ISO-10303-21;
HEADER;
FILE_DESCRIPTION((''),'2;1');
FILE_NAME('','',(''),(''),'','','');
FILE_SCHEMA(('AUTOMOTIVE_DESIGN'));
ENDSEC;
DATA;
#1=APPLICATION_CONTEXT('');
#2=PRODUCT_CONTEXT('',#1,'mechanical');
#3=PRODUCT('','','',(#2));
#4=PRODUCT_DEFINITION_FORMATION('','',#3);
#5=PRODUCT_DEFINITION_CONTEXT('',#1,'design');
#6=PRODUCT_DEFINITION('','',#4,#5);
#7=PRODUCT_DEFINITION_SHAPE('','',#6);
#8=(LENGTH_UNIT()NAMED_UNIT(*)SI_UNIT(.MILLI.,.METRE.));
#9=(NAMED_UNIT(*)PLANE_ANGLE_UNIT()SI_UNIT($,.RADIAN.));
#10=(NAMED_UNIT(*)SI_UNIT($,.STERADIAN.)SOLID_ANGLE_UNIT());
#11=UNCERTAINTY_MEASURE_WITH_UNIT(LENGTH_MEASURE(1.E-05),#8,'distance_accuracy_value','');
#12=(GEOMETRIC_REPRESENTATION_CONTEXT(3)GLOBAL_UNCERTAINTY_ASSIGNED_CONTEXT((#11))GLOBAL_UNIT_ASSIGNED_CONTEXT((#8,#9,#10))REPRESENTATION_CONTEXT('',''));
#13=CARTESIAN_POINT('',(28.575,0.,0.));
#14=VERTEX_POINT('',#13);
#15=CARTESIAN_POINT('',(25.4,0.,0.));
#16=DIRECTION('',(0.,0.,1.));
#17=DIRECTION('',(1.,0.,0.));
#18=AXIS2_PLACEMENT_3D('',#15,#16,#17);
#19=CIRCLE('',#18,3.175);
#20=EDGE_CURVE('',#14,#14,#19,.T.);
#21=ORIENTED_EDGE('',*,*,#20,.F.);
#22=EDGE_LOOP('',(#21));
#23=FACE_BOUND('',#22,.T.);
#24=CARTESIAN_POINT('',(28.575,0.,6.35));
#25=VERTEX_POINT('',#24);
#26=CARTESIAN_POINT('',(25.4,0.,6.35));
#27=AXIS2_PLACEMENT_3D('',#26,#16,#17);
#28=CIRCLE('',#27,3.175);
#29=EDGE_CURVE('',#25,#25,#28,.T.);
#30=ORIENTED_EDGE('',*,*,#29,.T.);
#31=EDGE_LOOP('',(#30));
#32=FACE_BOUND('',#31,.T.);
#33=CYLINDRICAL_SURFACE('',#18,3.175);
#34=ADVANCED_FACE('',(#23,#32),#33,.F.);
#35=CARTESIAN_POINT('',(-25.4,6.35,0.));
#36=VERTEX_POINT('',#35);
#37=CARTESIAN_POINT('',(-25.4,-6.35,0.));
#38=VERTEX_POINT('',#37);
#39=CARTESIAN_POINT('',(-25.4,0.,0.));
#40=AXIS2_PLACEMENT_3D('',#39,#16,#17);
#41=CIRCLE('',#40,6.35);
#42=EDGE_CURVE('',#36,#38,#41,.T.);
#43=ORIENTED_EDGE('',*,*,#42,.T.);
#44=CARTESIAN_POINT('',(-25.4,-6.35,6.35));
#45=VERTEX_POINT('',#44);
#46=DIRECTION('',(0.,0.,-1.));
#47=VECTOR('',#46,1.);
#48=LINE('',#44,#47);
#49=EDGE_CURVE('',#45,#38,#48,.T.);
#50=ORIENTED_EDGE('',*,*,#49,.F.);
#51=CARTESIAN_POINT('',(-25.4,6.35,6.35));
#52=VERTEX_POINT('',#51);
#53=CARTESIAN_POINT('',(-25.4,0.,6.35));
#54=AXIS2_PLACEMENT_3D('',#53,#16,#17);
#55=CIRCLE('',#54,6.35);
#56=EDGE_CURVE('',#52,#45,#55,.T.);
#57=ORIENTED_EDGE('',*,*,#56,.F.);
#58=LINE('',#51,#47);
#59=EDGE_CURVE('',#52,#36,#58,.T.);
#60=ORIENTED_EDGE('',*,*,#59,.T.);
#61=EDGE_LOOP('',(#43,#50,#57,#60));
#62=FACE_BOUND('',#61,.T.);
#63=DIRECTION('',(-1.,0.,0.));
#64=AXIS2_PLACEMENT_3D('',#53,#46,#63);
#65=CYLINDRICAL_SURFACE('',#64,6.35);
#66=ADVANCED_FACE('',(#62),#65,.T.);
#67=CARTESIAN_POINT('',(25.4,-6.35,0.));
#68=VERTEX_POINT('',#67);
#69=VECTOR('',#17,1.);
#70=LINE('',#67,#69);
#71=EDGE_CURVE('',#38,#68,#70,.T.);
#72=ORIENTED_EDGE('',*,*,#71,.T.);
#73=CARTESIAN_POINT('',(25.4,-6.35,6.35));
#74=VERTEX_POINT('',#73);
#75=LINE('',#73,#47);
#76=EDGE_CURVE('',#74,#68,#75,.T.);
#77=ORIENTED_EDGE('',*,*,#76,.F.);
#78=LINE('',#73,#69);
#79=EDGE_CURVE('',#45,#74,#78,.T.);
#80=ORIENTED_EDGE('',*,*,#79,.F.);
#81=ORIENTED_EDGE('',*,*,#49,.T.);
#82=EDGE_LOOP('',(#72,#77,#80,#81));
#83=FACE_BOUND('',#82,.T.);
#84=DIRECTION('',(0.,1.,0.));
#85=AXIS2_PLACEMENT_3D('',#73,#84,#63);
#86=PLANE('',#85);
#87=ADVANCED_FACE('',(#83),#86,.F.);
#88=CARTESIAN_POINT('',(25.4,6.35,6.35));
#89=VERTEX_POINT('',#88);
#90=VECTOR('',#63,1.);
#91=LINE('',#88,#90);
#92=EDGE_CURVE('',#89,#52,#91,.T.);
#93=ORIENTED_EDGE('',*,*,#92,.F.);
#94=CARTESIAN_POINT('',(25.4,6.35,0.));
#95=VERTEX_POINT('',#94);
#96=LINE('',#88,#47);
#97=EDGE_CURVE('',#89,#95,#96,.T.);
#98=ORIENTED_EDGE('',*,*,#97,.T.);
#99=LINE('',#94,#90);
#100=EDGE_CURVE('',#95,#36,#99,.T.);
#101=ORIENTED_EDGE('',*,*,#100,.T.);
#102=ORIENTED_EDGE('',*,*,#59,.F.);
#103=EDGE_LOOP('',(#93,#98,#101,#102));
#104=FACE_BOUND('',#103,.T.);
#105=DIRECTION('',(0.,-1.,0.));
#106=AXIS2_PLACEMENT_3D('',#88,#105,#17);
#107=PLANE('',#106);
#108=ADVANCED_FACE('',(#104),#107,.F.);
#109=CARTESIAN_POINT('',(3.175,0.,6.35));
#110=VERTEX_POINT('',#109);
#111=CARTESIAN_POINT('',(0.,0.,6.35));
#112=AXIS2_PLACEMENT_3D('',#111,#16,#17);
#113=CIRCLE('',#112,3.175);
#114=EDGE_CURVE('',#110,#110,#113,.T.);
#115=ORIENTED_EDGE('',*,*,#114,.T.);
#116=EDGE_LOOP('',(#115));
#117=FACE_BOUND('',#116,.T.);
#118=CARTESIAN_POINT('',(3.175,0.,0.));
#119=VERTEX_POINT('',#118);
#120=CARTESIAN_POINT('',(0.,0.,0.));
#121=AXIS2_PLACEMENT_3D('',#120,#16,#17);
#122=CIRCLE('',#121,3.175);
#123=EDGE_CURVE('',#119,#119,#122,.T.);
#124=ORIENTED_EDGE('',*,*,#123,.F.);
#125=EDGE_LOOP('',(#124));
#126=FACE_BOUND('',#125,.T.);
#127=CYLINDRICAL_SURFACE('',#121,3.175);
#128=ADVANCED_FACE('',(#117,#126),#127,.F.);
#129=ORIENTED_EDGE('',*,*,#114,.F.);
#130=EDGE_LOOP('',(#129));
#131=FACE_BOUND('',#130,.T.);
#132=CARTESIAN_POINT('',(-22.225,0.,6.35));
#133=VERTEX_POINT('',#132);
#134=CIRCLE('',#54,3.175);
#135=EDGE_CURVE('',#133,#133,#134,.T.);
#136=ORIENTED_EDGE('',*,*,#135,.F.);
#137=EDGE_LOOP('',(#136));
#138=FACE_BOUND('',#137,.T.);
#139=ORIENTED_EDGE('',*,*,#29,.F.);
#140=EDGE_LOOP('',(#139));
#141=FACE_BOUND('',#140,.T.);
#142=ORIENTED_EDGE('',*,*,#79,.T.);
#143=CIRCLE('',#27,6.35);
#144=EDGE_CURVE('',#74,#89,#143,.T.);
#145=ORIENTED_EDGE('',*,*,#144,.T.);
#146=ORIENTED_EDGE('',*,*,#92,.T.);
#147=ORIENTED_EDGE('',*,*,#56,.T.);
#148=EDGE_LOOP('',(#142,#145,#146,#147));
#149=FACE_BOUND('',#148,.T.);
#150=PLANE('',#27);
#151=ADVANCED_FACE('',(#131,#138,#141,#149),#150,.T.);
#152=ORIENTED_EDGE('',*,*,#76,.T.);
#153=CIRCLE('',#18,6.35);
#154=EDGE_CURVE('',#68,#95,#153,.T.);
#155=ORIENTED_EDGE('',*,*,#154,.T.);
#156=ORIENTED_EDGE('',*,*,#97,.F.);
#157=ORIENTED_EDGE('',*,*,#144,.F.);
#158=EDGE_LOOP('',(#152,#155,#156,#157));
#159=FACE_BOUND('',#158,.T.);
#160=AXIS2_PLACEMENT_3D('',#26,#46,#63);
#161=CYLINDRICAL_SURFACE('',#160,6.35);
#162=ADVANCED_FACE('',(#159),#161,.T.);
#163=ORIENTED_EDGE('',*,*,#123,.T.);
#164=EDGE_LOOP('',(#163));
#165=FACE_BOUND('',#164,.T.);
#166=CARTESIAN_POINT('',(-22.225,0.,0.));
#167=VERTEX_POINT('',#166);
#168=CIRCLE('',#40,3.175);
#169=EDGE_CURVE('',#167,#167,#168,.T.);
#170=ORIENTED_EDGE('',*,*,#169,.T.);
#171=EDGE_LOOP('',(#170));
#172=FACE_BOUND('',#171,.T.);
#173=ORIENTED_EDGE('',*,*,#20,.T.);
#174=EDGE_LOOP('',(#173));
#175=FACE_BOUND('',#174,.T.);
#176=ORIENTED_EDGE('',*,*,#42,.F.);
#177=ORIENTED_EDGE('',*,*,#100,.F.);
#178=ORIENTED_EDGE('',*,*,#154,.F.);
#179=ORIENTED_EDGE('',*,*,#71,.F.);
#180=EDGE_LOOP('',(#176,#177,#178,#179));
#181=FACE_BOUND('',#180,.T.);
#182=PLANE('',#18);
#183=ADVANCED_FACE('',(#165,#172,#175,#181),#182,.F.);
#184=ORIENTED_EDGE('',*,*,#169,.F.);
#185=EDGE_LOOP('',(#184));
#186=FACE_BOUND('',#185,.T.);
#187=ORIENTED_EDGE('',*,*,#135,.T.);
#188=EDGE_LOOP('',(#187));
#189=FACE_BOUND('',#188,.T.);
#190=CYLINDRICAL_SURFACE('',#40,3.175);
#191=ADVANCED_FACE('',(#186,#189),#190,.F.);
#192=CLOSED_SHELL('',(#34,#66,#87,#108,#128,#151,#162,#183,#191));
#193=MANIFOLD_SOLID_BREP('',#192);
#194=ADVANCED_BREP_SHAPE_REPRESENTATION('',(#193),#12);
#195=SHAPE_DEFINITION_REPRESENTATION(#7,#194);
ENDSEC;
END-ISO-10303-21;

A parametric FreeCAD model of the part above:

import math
import FreeCAD as App
import Part
import Sketcher
from FreeCAD import Vector
Q = App.Units.Quantity

doc = App.newDocument("Part")
body = doc.addObject("PartDesign::Body", "Body")

# Sketch on XY plane
sketch1 = body.newObject("Sketcher::SketchObject", "Sketch")
sketch1.AttachmentSupport = (doc.getObject("XY_Plane"), [""])
sketch1.MapMode = "FlatFace"
sketch1.addGeometry(Part.LineSegment(Vector(-25.4, -6.35, 0), Vector(25.4, -6.35, 0)), False)
sketch1.addGeometry(Part.ArcOfCircle(Part.Circle(Vector(25.4, 0, 0), Vector(0, 0, 1), 6.35), math.radians(-90), math.radians(90)), False)
sketch1.addGeometry(Part.LineSegment(Vector(25.4, 6.35, 0), Vector(-25.4, 6.35, 0)), False)
sketch1.addGeometry(Part.ArcOfCircle(Part.Circle(Vector(-25.4, 0, 0), Vector(0, 0, 1), 6.35), math.radians(90), math.radians(270)), False)
sketch1.addConstraint(Sketcher.Constraint("Tangent", 0, 2, 1, 1))
sketch1.addConstraint(Sketcher.Constraint("Tangent", 1, 2, 2, 1))
sketch1.addConstraint(Sketcher.Constraint("Tangent", 2, 2, 3, 1))
sketch1.addConstraint(Sketcher.Constraint("Tangent", 3, 2, 0, 1))
sketch1.addConstraint(Sketcher.Constraint("Horizontal", 0))
sketch1.addConstraint(Sketcher.Constraint("Horizontal", 2))
sketch1.addConstraint(Sketcher.Constraint("Symmetric", 1, 3, 3, 3, -1, 1))
sketch1.addConstraint(Sketcher.Constraint("DistanceX", 0, 1, 0, 2, Q("2 in")))
sketch1.addConstraint(Sketcher.Constraint("Radius", 1, Q("0.25 in")))
pad1 = body.newObject("PartDesign::Pad", "Pad")
pad1.Profile = sketch1
pad1.Length = Q("0.25 in")

# Sketch on XY plane
sketch2 = body.newObject("Sketcher::SketchObject", "Sketch001")
sketch2.AttachmentSupport = (doc.getObject("XY_Plane"), [""])
sketch2.MapMode = "FlatFace"
sketch2.AttachmentOffset = App.Placement(Vector(0, 0, 0.25 * 25.4), App.Rotation())
sketch2.addGeometry(Part.Circle(Vector(-25.4, 0, 0), Vector(0, 0, 1), 3.175), False)
sketch2.addGeometry(Part.Circle(Vector(0, 0, 0), Vector(0, 0, 1), 3.175), False)
sketch2.addGeometry(Part.Circle(Vector(25.4, 0, 0), Vector(0, 0, 1), 3.175), False)
sketch2.addConstraint(Sketcher.Constraint("Coincident", 1, 3, -1, 1))
sketch2.addConstraint(Sketcher.Constraint("Equal", 0, 1))
sketch2.addConstraint(Sketcher.Constraint("Equal", 1, 2))
sketch2.addConstraint(Sketcher.Constraint("Symmetric", 0, 3, 2, 3, -1, 1))
sketch2.addConstraint(Sketcher.Constraint("PointOnObject", 0, 3, -1))
sketch2.addConstraint(Sketcher.Constraint("Diameter", 0, Q("0.25 in")))
sketch2.addConstraint(Sketcher.Constraint("DistanceX", 0, 3, -1, 1, Q("1 in")))
pocket1 = body.newObject("PartDesign::Pocket", "Pocket")
pocket1.Profile = sketch2
pocket1.Type = "ThroughAll"

doc.recompute()
